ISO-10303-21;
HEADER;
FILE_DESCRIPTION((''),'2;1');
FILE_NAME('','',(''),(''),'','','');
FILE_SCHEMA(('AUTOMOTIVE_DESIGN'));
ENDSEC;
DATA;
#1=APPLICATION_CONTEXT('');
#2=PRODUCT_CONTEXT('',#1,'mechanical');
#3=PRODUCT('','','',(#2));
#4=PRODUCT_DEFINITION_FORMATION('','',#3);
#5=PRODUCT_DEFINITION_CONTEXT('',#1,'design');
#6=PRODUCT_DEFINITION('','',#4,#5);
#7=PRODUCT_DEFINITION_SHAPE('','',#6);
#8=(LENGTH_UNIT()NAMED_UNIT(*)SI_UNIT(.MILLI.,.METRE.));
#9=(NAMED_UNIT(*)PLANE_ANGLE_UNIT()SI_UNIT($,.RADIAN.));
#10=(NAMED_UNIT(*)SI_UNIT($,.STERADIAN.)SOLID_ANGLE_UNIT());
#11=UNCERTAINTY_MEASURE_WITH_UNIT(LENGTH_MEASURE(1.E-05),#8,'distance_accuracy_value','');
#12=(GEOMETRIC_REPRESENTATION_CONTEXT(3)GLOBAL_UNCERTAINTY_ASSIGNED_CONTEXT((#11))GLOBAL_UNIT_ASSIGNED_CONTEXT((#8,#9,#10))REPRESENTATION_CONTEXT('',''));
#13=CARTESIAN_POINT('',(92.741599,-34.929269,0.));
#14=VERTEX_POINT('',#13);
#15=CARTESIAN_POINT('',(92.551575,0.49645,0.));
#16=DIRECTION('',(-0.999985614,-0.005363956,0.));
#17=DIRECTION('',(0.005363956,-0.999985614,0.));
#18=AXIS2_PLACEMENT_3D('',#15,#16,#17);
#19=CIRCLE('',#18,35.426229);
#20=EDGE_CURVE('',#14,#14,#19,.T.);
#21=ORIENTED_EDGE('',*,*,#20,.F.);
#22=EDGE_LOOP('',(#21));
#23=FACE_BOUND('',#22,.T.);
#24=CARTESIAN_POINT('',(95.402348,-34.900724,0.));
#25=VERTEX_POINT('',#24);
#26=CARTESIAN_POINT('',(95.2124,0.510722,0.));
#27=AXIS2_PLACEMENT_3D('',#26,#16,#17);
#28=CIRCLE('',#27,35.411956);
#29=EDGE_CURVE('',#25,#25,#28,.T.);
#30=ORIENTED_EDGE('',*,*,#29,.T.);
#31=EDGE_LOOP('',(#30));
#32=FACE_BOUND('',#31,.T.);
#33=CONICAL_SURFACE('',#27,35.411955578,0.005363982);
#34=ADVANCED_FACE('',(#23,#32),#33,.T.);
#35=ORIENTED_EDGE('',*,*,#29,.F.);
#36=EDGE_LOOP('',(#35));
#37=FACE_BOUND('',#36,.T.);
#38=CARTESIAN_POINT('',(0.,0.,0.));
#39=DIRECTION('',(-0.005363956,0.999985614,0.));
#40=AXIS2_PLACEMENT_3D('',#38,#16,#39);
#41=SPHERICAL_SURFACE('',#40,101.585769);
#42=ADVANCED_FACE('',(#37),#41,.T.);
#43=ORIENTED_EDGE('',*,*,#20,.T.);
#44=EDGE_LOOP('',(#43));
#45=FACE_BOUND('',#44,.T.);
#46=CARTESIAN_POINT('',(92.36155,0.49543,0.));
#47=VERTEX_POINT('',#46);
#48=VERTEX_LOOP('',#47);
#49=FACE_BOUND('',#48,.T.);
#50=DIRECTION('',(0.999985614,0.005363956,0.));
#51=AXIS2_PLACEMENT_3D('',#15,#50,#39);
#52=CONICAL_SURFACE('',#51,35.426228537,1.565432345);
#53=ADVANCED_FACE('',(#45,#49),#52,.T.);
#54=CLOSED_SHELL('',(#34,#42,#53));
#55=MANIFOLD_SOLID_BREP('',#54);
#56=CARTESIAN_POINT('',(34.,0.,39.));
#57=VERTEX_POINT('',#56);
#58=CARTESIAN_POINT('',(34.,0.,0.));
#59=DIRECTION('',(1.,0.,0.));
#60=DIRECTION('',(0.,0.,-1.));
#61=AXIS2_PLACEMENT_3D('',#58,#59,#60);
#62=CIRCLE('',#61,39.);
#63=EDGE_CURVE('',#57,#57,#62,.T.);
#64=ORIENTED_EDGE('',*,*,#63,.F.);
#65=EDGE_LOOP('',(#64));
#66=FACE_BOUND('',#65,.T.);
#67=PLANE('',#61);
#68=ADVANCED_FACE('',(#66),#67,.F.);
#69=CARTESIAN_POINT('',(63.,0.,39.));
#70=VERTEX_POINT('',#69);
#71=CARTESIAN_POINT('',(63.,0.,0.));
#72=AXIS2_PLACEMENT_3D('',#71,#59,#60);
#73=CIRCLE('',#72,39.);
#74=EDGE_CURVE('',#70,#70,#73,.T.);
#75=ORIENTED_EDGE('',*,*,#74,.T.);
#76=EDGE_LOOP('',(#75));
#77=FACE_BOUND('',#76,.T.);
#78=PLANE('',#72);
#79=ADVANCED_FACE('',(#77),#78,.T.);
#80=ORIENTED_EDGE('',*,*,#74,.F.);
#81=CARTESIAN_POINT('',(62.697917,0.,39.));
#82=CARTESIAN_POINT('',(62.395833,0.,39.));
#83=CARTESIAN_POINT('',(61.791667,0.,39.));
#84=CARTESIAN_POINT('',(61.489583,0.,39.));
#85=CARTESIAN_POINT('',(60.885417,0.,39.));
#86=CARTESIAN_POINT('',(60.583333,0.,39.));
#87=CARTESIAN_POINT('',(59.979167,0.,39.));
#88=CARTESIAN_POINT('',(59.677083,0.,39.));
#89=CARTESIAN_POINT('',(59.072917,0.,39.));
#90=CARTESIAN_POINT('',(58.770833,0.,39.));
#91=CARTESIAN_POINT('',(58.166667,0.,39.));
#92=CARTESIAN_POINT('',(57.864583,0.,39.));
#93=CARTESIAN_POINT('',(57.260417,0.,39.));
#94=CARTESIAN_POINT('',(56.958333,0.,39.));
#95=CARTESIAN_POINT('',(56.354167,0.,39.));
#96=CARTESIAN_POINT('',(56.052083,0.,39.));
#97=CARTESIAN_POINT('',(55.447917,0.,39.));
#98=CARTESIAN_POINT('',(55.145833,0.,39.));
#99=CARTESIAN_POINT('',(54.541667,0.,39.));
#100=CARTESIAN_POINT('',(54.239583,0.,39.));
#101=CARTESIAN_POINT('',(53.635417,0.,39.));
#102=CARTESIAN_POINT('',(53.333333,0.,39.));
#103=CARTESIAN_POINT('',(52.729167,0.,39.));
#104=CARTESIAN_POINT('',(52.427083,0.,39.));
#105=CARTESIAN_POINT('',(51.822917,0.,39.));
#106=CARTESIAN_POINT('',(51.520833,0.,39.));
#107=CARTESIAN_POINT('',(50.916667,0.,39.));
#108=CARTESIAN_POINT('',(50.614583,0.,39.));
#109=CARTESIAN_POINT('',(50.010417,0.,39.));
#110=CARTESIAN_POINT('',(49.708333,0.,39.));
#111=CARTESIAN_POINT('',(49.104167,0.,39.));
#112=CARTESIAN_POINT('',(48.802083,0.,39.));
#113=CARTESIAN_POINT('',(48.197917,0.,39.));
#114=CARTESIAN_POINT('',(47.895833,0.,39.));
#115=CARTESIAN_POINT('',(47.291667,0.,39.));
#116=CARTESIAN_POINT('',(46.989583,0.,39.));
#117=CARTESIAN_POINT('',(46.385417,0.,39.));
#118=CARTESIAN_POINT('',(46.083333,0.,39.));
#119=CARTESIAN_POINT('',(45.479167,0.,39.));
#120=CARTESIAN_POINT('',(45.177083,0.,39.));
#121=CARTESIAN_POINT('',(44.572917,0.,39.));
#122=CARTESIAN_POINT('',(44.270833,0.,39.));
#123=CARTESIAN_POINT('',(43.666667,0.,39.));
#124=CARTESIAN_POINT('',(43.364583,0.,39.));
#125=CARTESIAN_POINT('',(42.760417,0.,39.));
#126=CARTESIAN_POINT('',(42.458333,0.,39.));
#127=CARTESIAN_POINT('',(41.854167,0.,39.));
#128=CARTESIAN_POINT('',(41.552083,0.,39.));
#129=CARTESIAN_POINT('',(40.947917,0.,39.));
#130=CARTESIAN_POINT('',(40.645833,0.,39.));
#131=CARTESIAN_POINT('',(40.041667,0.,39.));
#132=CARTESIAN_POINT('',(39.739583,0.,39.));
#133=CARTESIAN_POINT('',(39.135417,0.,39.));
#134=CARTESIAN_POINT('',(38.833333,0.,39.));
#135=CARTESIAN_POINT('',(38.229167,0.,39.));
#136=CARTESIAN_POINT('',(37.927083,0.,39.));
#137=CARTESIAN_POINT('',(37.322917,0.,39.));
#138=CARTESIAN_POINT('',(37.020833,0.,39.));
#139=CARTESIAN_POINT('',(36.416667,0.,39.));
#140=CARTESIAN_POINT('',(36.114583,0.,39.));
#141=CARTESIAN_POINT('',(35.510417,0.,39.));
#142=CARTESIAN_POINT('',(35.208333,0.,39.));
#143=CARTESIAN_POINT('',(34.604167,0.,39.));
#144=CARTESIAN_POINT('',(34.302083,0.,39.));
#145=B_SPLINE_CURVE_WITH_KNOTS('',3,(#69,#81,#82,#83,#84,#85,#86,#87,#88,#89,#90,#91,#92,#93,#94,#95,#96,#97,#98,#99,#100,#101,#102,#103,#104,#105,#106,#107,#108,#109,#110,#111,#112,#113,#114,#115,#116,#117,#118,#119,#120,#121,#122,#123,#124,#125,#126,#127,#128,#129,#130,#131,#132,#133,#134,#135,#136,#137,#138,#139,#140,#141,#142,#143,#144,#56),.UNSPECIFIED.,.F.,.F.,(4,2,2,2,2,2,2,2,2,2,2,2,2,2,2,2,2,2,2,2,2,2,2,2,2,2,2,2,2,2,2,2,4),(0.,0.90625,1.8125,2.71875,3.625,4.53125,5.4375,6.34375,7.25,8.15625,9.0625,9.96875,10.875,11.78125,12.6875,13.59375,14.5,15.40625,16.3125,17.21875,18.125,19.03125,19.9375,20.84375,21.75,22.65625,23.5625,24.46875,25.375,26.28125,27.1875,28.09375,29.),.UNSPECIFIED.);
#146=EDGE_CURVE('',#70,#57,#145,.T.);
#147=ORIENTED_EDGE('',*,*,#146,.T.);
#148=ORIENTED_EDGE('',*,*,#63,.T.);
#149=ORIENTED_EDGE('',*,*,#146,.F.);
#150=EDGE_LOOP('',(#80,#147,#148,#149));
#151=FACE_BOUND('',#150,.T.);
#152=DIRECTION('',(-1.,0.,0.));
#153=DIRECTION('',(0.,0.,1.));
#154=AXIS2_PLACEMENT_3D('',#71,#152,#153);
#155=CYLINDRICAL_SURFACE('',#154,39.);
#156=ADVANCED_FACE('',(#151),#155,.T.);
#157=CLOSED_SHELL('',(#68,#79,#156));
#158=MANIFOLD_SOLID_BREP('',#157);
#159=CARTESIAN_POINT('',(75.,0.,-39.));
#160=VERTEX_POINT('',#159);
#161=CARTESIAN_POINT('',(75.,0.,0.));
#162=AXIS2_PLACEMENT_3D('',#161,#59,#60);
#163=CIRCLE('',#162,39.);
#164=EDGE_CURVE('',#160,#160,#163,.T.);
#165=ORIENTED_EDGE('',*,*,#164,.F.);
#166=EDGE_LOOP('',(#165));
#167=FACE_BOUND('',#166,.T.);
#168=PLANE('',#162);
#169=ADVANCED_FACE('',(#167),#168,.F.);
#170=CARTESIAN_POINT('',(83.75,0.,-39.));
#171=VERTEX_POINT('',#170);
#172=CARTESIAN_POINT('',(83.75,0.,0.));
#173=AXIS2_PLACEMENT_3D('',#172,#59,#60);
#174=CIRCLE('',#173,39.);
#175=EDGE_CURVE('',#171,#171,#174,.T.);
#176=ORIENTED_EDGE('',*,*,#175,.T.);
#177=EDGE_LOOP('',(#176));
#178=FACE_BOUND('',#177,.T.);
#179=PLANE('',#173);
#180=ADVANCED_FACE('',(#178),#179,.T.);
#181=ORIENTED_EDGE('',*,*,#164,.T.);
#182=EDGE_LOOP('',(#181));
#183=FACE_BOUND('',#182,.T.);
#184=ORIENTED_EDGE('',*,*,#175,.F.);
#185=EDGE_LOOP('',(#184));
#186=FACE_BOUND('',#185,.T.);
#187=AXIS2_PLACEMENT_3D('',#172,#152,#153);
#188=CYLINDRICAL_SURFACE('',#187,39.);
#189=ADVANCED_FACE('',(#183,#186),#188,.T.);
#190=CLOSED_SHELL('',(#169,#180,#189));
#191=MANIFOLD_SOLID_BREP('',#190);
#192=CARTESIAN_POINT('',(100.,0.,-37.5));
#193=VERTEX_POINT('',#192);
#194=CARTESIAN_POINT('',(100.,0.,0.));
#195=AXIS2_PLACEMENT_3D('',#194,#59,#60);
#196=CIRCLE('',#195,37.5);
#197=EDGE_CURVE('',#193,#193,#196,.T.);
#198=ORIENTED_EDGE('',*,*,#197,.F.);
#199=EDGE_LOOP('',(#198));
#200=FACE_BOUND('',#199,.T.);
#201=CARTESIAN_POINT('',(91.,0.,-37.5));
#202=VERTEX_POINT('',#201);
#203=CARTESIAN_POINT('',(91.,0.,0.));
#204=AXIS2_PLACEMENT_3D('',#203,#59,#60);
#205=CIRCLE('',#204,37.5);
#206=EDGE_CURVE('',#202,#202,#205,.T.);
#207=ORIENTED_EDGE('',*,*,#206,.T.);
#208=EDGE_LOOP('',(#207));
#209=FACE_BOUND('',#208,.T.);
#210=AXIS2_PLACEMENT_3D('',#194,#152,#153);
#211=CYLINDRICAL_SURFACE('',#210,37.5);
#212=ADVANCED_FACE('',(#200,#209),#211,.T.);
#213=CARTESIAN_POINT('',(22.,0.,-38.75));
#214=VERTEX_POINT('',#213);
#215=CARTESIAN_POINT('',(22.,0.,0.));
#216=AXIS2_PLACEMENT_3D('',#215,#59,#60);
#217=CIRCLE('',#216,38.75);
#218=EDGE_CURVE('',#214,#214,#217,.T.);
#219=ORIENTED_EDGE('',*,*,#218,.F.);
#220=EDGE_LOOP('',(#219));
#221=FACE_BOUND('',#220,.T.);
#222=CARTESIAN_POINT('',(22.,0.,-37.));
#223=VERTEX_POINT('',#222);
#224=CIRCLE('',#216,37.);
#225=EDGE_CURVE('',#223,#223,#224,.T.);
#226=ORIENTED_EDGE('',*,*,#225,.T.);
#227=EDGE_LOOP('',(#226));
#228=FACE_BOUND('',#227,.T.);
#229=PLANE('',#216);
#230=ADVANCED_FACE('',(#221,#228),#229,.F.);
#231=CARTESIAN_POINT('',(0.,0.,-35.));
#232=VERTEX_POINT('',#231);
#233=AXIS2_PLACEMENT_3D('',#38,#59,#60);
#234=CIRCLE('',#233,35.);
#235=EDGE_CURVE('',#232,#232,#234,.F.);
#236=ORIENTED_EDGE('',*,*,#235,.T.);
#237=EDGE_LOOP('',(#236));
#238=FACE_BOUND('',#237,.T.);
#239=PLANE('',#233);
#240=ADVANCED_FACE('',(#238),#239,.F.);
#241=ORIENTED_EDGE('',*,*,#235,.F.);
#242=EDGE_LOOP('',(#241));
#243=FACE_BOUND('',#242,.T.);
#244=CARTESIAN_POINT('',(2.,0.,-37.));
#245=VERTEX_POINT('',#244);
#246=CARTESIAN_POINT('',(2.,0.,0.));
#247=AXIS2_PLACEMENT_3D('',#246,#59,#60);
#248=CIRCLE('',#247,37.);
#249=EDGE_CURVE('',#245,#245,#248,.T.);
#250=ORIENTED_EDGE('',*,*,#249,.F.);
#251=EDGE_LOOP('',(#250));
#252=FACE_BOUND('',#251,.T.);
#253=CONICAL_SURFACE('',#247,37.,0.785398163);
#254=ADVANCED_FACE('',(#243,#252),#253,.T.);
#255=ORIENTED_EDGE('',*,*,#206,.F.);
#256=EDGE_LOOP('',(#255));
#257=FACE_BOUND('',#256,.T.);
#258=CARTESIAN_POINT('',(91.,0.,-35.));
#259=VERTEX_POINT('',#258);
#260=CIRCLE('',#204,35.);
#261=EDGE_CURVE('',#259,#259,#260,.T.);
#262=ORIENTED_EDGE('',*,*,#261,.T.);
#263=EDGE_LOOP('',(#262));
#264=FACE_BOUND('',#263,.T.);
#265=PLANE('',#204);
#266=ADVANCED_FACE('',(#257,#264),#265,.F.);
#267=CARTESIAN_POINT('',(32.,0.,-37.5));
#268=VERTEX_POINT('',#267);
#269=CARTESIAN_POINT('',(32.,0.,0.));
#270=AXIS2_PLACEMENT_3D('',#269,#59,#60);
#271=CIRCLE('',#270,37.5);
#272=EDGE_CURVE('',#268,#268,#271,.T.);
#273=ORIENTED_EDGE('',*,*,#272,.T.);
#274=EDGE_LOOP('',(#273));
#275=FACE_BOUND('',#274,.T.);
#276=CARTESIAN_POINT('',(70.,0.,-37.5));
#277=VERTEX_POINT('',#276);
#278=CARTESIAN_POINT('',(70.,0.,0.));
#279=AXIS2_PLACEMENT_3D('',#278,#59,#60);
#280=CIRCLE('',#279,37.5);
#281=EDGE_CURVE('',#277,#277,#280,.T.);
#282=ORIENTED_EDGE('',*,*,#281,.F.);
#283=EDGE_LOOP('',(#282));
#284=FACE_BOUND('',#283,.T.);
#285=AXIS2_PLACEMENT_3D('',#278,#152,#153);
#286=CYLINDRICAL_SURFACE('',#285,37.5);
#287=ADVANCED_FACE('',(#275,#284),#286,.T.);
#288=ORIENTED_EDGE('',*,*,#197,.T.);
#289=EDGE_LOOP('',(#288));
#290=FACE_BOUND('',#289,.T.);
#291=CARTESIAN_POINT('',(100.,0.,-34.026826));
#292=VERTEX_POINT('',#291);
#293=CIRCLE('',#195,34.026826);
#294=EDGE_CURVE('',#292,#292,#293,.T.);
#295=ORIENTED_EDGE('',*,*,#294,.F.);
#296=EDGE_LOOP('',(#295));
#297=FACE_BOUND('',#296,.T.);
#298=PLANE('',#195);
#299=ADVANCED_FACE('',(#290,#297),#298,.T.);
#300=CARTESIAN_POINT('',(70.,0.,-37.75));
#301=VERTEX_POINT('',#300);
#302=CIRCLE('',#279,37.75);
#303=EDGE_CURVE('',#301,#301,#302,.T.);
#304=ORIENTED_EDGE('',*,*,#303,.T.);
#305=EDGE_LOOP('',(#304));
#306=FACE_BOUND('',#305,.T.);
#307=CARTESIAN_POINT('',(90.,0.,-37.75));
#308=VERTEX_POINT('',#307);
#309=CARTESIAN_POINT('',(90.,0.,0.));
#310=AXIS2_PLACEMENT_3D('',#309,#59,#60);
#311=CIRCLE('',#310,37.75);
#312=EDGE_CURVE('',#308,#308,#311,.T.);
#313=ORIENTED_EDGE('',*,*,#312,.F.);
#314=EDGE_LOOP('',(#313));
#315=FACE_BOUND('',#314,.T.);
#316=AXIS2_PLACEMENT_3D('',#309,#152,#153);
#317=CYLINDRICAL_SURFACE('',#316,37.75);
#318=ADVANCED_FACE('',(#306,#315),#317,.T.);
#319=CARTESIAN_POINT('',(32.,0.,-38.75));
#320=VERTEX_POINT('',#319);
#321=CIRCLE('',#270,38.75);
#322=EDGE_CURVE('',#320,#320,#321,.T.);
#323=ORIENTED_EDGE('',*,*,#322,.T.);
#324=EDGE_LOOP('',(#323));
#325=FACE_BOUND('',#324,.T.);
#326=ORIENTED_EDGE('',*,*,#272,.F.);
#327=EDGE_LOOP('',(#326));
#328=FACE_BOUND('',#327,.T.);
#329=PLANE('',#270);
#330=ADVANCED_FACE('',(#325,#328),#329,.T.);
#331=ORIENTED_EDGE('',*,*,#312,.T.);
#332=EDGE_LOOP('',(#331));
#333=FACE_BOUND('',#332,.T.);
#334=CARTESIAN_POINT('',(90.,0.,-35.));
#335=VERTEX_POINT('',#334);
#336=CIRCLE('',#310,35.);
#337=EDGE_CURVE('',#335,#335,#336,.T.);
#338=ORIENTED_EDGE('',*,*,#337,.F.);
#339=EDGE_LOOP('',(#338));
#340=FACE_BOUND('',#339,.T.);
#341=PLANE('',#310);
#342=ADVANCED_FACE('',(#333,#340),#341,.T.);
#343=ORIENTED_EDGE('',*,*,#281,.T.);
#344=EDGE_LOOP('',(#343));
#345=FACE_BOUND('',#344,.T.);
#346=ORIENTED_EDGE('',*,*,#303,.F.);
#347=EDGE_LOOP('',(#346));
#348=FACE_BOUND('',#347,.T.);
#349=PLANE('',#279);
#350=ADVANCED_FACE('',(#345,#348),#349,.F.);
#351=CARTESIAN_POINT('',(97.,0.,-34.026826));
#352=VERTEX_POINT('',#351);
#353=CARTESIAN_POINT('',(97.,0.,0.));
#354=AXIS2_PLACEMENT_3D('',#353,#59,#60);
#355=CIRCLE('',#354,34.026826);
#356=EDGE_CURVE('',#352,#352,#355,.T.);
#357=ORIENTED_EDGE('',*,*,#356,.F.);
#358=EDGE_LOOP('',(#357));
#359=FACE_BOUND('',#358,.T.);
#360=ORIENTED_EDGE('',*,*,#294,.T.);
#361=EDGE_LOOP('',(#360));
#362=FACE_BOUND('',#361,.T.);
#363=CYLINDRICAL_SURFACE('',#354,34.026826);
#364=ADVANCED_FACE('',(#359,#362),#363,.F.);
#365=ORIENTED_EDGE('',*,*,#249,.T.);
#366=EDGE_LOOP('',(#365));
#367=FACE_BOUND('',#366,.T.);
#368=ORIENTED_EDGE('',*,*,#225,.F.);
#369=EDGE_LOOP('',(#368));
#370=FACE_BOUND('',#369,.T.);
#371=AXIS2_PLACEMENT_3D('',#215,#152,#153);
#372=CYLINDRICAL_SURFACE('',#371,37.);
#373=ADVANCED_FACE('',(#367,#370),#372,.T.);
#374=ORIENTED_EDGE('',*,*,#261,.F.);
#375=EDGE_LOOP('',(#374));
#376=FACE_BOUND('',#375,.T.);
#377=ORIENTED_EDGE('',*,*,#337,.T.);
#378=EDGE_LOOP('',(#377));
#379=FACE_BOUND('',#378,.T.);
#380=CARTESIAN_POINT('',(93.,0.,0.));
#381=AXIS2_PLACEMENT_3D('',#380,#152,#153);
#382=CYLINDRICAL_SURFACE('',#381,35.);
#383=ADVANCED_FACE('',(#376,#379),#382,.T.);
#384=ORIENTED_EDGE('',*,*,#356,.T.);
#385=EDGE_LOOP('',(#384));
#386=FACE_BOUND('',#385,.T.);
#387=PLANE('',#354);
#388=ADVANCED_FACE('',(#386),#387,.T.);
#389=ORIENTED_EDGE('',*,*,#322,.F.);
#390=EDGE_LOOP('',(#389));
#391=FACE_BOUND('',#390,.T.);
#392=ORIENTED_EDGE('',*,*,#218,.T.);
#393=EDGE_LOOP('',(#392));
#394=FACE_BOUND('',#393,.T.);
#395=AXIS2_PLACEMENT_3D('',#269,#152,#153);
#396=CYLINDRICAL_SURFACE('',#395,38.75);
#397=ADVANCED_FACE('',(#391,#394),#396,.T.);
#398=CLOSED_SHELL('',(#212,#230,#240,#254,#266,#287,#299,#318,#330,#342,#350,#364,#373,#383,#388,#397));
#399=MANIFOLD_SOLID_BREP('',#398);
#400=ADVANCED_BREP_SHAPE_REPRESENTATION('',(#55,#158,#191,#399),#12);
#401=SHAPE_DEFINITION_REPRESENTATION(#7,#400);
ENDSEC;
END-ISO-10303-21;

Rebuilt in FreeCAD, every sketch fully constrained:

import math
import FreeCAD as App
import Part
import Sketcher

V = App.Vector
Q = App.Units.Quantity


def edges_at(feature, points):
    """Names of the edges that pass closest to the given points."""
    edges = feature.Shape.Edges
    near = lambda p: min(range(len(edges)), key=lambda i: edges[i].distToShape(Part.Vertex(*p))[0])
    return sorted({f"Edge{near(p) + 1}" for p in points})

doc = App.newDocument("Part")
body = doc.addObject("PartDesign::Body", "Body")

sketch1 = body.newObject("Sketcher::SketchObject", "Sketch")
sketch1.AttachmentSupport = (doc.getObject("YZ_Plane"), [""])
sketch1.MapMode = "FlatFace"
sketch1.addGeometry(Part.Circle(V(0, 0, 0), V(0, 0, 1), 37), False)
sketch1.addConstraint(Sketcher.Constraint("Coincident", 0, 3, -1, 1))
sketch1.addConstraint(Sketcher.Constraint("Diameter", 0, Q("74 mm")))
pad1 = body.newObject("PartDesign::Pad", "Pad")
pad1.Profile = sketch1
pad1.Length = 22

sketch2 = body.newObject("Sketcher::SketchObject", "Sketch001")
sketch2.AttachmentSupport = (doc.getObject("YZ_Plane"), [""])
sketch2.MapMode = "FlatFace"
sketch2.AttachmentOffset = App.Placement(V(0, 0, 22), App.Rotation())
sketch2.addGeometry(Part.Circle(V(0, 0, 0), V(0, 0, 1), 39), False)
sketch2.addConstraint(Sketcher.Constraint("Coincident", 0, 3, -1, 1))
sketch2.addConstraint(Sketcher.Constraint("Diameter", 0, Q("77.5 mm")))
pad2 = body.newObject("PartDesign::Pad", "Pad001")
pad2.Profile = sketch2
pad2.Length = 10

sketch3 = body.newObject("Sketcher::SketchObject", "Sketch002")
sketch3.AttachmentSupport = (doc.getObject("YZ_Plane"), [""])
sketch3.MapMode = "FlatFace"
sketch3.AttachmentOffset = App.Placement(V(0, 0, 32), App.Rotation())
sketch3.addGeometry(Part.Circle(V(0, 0, 0), V(0, 0, 1), 38), False)
sketch3.addConstraint(Sketcher.Constraint("Coincident", 0, 3, -1, 1))
sketch3.addConstraint(Sketcher.Constraint("Diameter", 0, Q("75 mm")))
pad3 = body.newObject("PartDesign::Pad", "Pad002")
pad3.Profile = sketch3
pad3.Length = 38

sketch4 = body.newObject("Sketcher::SketchObject", "Sketch003")
sketch4.AttachmentSupport = (doc.getObject("YZ_Plane"), [""])
sketch4.MapMode = "FlatFace"
sketch4.AttachmentOffset = App.Placement(V(0, 0, 70), App.Rotation())
sketch4.addGeometry(Part.Circle(V(0, 0, 0), V(0, 0, 1), 38), False)
sketch4.addConstraint(Sketcher.Constraint("Coincident", 0, 3, -1, 1))
sketch4.addConstraint(Sketcher.Constraint("Diameter", 0, Q("75.5 mm")))
pad4 = body.newObject("PartDesign::Pad", "Pad003")
pad4.Profile = sketch4
pad4.Length = 20

sketch5 = body.newObject("Sketcher::SketchObject", "Sketch004")
sketch5.AttachmentSupport = (doc.getObject("YZ_Plane"), [""])
sketch5.MapMode = "FlatFace"
sketch5.AttachmentOffset = App.Placement(V(0, 0, 90), App.Rotation())
sketch5.addGeometry(Part.Circle(V(0, 0, 0), V(0, 0, 1), 35), False)
sketch5.addConstraint(Sketcher.Constraint("Coincident", 0, 3, -1, 1))
sketch5.addConstraint(Sketcher.Constraint("Diameter", 0, Q("70 mm")))
pad5 = body.newObject("PartDesign::Pad", "Pad004")
pad5.Profile = sketch5
pad5.Length = 3

sketch6 = body.newObject("Sketcher::SketchObject", "Sketch005")
sketch6.AttachmentSupport = (doc.getObject("YZ_Plane"), [""])
sketch6.MapMode = "FlatFace"
sketch6.AttachmentOffset = App.Placement(V(0, 0, 91), App.Rotation())
sketch6.addGeometry(Part.Circle(V(0, 0, 0), V(0, 0, 1), 38), False)
sketch6.addConstraint(Sketcher.Constraint("Coincident", 0, 3, -1, 1))
sketch6.addConstraint(Sketcher.Constraint("Diameter", 0, Q("75 mm")))
pad6 = body.newObject("PartDesign::Pad", "Pad005")
pad6.Profile = sketch6
pad6.Length = 9
doc.recompute()

chamfer = body.newObject("PartDesign::Chamfer", "Chamfer")
chamfer.Base = (pad6, edges_at(pad6, [(0, 0, 37)]))
chamfer.Size = 2

sketch7 = body.newObject("Sketcher::SketchObject", "Sketch006")
sketch7.AttachmentSupport = (doc.getObject("YZ_Plane"), [""])
sketch7.MapMode = "FlatFace"
sketch7.AttachmentOffset = App.Placement(V(0, 0, 100), App.Rotation())
sketch7.addGeometry(Part.Circle(V(0, 0, 0), V(0, 0, 1), 34), False)
sketch7.addConstraint(Sketcher.Constraint("Coincident", 0, 3, -1, 1))
sketch7.addConstraint(Sketcher.Constraint("Diameter", 0, Q("68.053651 mm")))
pocket1 = body.newObject("PartDesign::Pocket", "Pocket")
pocket1.Profile = sketch7
pocket1.Length = 3
body2 = doc.addObject("PartDesign::Body", "Body001")

sketch8 = body2.newObject("Sketcher::SketchObject", "Sketch007")
sketch8.AttachmentSupport = (doc.getObject("YZ_Plane001"), [""])
sketch8.MapMode = "FlatFace"
sketch8.AttachmentOffset = App.Placement(V(0, 0, 34), App.Rotation())
sketch8.addGeometry(Part.Circle(V(0, 0, 0), V(0, 0, 1), 39), False)
sketch8.addConstraint(Sketcher.Constraint("Coincident", 0, 3, -1, 1))
sketch8.addConstraint(Sketcher.Constraint("Diameter", 0, Q("78 mm")))
pad7 = body2.newObject("PartDesign::Pad", "Pad006")
pad7.Profile = sketch8
pad7.Length = 29
body3 = doc.addObject("PartDesign::Body", "Body002")

sketch9 = body3.newObject("Sketcher::SketchObject", "Sketch008")
sketch9.AttachmentSupport = (doc.getObject("YZ_Plane002"), [""])
sketch9.MapMode = "FlatFace"
sketch9.AttachmentOffset = App.Placement(V(0, 0, 75), App.Rotation())
sketch9.addGeometry(Part.Circle(V(0, 0, 0), V(0, 0, 1), 39), False)
sketch9.addConstraint(Sketcher.Constraint("Coincident", 0, 3, -1, 1))
sketch9.addConstraint(Sketcher.Constraint("Diameter", 0, Q("78 mm")))
pad8 = body3.newObject("PartDesign::Pad", "Pad007")
pad8.Profile = sketch9
pad8.Length = 8.75
body4 = doc.addObject("PartDesign::Body", "Body003")

sketch10 = body4.newObject("Sketcher::SketchObject", "Sketch009")
sketch10.AttachmentSupport = (doc.getObject("XY_Plane003"), [""])
sketch10.MapMode = "FlatFace"
sketch10.addGeometry(Part.LineSegment(V(95, 35.9, 0), V(92.4, 35.9, 0)), False)
sketch10.addGeometry(Part.LineSegment(V(92.4, 35.9, 0), V(92.4, 0.5, 0)), False)
sketch10.addGeometry(Part.LineSegment(V(92.4, 0.5, 0), V(101.6, 0.5, 0)), False)
sketch10.addGeometry(Part.ArcOfCircle(Part.Circle(V(0, 0, 0), V(0, 0, 1), 101.6), math.radians(0), math.radians(21)), False)
sketch10.addGeometry(Part.LineSegment(V(0, 0, 0), V(101.6, 0.5, 0)), True)
sketch10.addConstraint(Sketcher.Constraint("Coincident", 0, 2, 1, 1))
sketch10.addConstraint(Sketcher.Constraint("Coincident", 1, 2, 2, 1))
sketch10.addConstraint(Sketcher.Constraint("Coincident", 2, 2, 3, 1))
sketch10.addConstraint(Sketcher.Constraint("Coincident", 3, 2, 0, 1))
sketch10.addConstraint(Sketcher.Constraint("Horizontal", 0))
sketch10.addConstraint(Sketcher.Constraint("Vertical", 1))
sketch10.addConstraint(Sketcher.Constraint("Coincident", 3, 3, -1, 1))
sketch10.addConstraint(Sketcher.Constraint("Coincident", 4, 1, -1, 1))
sketch10.addConstraint(Sketcher.Constraint("Coincident", 4, 2, 2, 2))
sketch10.addConstraint(Sketcher.Constraint("Parallel", 2, 4))
sketch10.addConstraint(Sketcher.Constraint("Radius", 3, Q("101.585769 mm")))
sketch10.addConstraint(Sketcher.Constraint("DistanceX", 0, 2, 0, 1, Q("2.660901 mm")))
sketch10.addConstraint(Sketcher.Constraint("DistanceY", 1, 2, 1, 1, Q("35.426738 mm")))
sketch10.addConstraint(Sketcher.Constraint("DistanceY", -1, 1, 2, 2, Q("0.544902 mm")))
revolution = body4.newObject("PartDesign::Revolution", "Revolution")
revolution.Profile = sketch10
revolution.ReferenceAxis = (sketch10, ["Axis0"])
revolution.Angle = 360

doc.recompute()
